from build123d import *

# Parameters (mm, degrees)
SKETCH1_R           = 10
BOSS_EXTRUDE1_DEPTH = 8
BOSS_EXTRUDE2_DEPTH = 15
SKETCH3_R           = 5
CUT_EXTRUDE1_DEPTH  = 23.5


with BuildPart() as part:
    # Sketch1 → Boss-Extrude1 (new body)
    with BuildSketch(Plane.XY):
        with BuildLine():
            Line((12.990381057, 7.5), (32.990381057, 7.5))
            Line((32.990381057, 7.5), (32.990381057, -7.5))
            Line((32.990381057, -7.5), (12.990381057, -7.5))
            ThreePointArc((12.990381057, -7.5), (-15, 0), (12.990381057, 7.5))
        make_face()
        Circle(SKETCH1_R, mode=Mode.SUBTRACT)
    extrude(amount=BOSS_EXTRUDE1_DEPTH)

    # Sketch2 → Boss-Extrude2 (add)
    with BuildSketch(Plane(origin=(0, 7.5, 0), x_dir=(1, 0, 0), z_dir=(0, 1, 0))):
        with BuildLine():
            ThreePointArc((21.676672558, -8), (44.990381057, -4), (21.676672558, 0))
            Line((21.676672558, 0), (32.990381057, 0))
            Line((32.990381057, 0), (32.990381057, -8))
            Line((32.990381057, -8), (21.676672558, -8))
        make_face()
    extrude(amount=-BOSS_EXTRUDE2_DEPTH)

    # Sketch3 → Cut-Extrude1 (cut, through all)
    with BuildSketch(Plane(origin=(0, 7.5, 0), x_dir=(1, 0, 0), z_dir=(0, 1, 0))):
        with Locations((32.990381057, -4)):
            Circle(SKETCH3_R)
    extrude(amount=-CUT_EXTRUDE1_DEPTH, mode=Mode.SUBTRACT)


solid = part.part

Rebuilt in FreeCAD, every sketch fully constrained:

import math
import FreeCAD as App
import Part
import Sketcher
Q = App.Units.Quantity

doc = App.newDocument("Part")
params = doc.addObject("Spreadsheet::Sheet", "Params")
for row, (alias, value) in enumerate([
    ("sketch1_diameter", "20 mm"),
    ("sketch1_radius", "15 mm"),
    ("sketch1_width", "20 mm"),
    ("sketch1_height", "15 mm"),
    ("pad1_length", "8 mm"),
    ("sketch2_radius", "12 mm"),
    ("sketch2_height", "8 mm"),
    ("pad2_length", "15 mm"),
    ("sketch3_diameter", "10 mm"),
], start=1):
    params.set(f"A{row}", alias)
    params.set(f"B{row}", "=" + value)
    params.setAlias(f"B{row}", alias)

body = doc.addObject("PartDesign::Body", "Body")

# Sketch on XY plane
sketch1 = body.newObject("Sketcher::SketchObject", "Sketch")
sketch1.AttachmentSupport = (doc.getObject("XY_Plane"), [""])
sketch1.MapMode = "FlatFace"
sketch1.addGeometry([
    Part.LineSegment(App.Vector(32.990381, 7.5, 0), App.Vector(12.990381, 7.5, 0)),  # 0
    Part.ArcOfCircle(Part.Circle(App.Vector(0, 0, 0), App.Vector(0, 0, 1), 15), math.radians(30), math.radians(330)),  # 1
    Part.LineSegment(App.Vector(12.990381, -7.5, 0), App.Vector(32.990381, -7.5, 0)),  # 2
    Part.LineSegment(App.Vector(32.990381, -7.5, 0), App.Vector(32.990381, 7.5, 0)),  # 3
    Part.Circle(App.Vector(0, 0, 0), App.Vector(0, 0, 1), 10),  # 4
], False)
sketch1.addConstraint([
    Sketcher.Constraint("Coincident", 0, 2, 1, 1),
    Sketcher.Constraint("Coincident", 1, 2, 2, 1),
    Sketcher.Constraint("Coincident", 2, 2, 3, 1),
    Sketcher.Constraint("Coincident", 3, 2, 0, 1),
    Sketcher.Constraint("Horizontal", 0),
    Sketcher.Constraint("Horizontal", 2),
    Sketcher.Constraint("Vertical", 3),
    Sketcher.Constraint("Coincident", 1, 3, -1, 1),
    Sketcher.Constraint("Coincident", 4, 3, -1, 1),
    Sketcher.Constraint("Vertical", 0, 2, 1, 2),
    Sketcher.Constraint("Diameter", 4, Q("20 mm")),
    Sketcher.Constraint("Radius", 1, Q("15 mm")),
    Sketcher.Constraint("DistanceX", 0, 2, 0, 1, Q("20 mm")),
    Sketcher.Constraint("DistanceY", 3, 1, 3, 2, Q("15 mm")),
])
sketch1.setExpression("Constraints[10]", "Params.sketch1_diameter")
sketch1.setExpression("Constraints[11]", "Params.sketch1_radius")
sketch1.setExpression("Constraints[12]", "Params.sketch1_width")
sketch1.setExpression("Constraints[13]", "Params.sketch1_height")
pad1 = body.newObject("PartDesign::Pad", "Pad")
pad1.Profile = sketch1
pad1.setExpression("Length", "Params.pad1_length")

# Sketch on XZ plane
sketch2 = body.newObject("Sketcher::SketchObject", "Sketch001")
sketch2.AttachmentSupport = (doc.getObject("XZ_Plane"), [""])
sketch2.MapMode = "FlatFace"
sketch2.AttachmentOffset = App.Placement(App.Vector(0, 0, -7.5), App.Rotation())
sketch2.addGeometry([
    Part.ArcOfCircle(Part.Circle(App.Vector(32.990381, 4, 0), App.Vector(0, 0, 1), 12), math.radians(-160.528779), math.radians(160.528779)),
    Part.LineSegment(App.Vector(21.676673, 0, 0), App.Vector(32.990381, 0, 0)),
    Part.LineSegment(App.Vector(32.990381, 0, 0), App.Vector(32.990381, 8, 0)),
    Part.LineSegment(App.Vector(32.990381, 8, 0), App.Vector(21.676673, 8, 0)),
], False)
sketch2.addConstraint([
    Sketcher.Constraint("Coincident", 0, 1, 1, 1),
    Sketcher.Constraint("Coincident", 1, 2, 2, 1),
    Sketcher.Constraint("Coincident", 2, 2, 3, 1),
    Sketcher.Constraint("Coincident", 3, 2, 0, 2),
    Sketcher.Constraint("Horizontal", 1),
    Sketcher.Constraint("Vertical", 2),
    Sketcher.Constraint("Horizontal", 3),
    Sketcher.Constraint("PointOnObject", 0, 1, -1),
    Sketcher.Constraint("Vertical", 0, 3, 1, 2),
    Sketcher.Constraint("Vertical", 0, 1, 3, 2),
    Sketcher.Constraint("Radius", 0, Q("12 mm")),
    Sketcher.Constraint("DistanceY", 2, 1, 2, 2, Q("8 mm")),
    Sketcher.Constraint("DistanceX", -1, 1, 0, 3, Q("32.990381 mm")),
])
sketch2.setExpression("Constraints[10]", "Params.sketch2_radius")
sketch2.setExpression("Constraints[11]", "Params.sketch2_height")
pad2 = body.newObject("PartDesign::Pad", "Pad001")
pad2.Profile = sketch2
pad2.setExpression("Length", "Params.pad2_length")

# Sketch on XZ plane
sketch3 = body.newObject("Sketcher::SketchObject", "Sketch002")
sketch3.AttachmentSupport = (doc.getObject("XZ_Plane"), [""])
sketch3.MapMode = "FlatFace"
sketch3.AttachmentOffset = App.Placement(App.Vector(0, 0, -7.5), App.Rotation())
sketch3.addGeometry(Part.Circle(App.Vector(32.990381, 4, 0), App.Vector(0, 0, 1), 5), False)
sketch3.addConstraint([
    Sketcher.Constraint("Diameter", 0, Q("10 mm")),
    Sketcher.Constraint("DistanceY", -1, 1, 0, 3, Q("4 mm")),
    Sketcher.Constraint("DistanceX", -1, 1, 0, 3, Q("32.990381 mm")),
])
sketch3.setExpression("Constraints[0]", "Params.sketch3_diameter")
pocket1 = body.newObject("PartDesign::Pocket", "Pocket")
pocket1.Profile = sketch3
pocket1.Type = "ThroughAll"
pocket1.Reversed = True

doc.recompute()
